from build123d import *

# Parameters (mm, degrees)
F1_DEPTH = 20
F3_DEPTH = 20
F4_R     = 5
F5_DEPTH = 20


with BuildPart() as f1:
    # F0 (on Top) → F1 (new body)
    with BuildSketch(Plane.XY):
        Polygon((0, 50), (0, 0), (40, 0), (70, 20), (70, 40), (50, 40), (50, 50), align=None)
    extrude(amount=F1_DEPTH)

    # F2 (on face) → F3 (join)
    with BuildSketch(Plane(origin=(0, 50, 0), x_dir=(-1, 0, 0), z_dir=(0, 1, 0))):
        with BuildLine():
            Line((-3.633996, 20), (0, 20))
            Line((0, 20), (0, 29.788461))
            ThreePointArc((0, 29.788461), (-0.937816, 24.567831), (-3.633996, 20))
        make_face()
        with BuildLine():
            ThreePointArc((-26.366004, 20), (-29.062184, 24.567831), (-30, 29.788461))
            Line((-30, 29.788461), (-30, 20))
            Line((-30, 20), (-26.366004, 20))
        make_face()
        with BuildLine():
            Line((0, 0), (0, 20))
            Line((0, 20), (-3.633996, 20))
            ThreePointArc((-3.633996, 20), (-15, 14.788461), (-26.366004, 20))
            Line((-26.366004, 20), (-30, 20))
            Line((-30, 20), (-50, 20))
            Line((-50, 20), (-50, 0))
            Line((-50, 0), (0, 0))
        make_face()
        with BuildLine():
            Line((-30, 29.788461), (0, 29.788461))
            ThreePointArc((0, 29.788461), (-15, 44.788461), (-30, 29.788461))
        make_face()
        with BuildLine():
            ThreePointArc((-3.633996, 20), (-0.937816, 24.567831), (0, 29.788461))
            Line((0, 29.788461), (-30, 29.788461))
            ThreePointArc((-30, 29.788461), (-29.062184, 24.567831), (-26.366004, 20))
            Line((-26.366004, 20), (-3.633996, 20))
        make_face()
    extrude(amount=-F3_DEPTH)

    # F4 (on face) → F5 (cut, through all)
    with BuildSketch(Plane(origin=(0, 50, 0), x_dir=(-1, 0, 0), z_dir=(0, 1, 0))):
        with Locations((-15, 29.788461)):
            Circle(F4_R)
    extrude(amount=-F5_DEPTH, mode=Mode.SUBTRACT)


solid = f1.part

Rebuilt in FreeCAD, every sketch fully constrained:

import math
import FreeCAD as App
import Part
import Sketcher


def add_polygon(sketch, points):
    """Adds a closed chain of lines whose ends are joined by coincident constraints."""
    first, n = sketch.GeometryCount, len(points)
    for a, b in zip(points, points[1:] + points[:1]):
        sketch.addGeometry(Part.LineSegment(App.Vector(*a, 0), App.Vector(*b, 0)), False)
    for i in range(n):
        sketch.addConstraint(Sketcher.Constraint("Coincident", first + i, 2, first + (i + 1) % n, 1))

doc = App.newDocument("Part")
body = doc.addObject("PartDesign::Body", "Body")

sketch1 = body.newObject("Sketcher::SketchObject", "Sketch")
sketch1.AttachmentSupport = (doc.getObject("XY_Plane"), [""])
sketch1.MapMode = "FlatFace"
add_polygon(sketch1, [(0, 50), (0, 0), (40, 0), (70, 20), (70, 40), (50, 40), (50, 50)])
sketch1.addConstraint([
    Sketcher.Constraint("Vertical", 0),
    Sketcher.Constraint("Horizontal", 1),
    Sketcher.Constraint("Vertical", 3),
    Sketcher.Constraint("Horizontal", 4),
    Sketcher.Constraint("Vertical", 5),
    Sketcher.Constraint("Horizontal", 6),
    Sketcher.Constraint("Coincident", 0, 2, -1, 1),
    Sketcher.Constraint("Equal", 6, 0),
    Sketcher.Constraint("Equal", 4, 3),
    Sketcher.Constraint("DistanceX", 1, 1, 1, 2, 40.0),
    Sketcher.Constraint("DistanceX", 4, 2, 4, 1, 20.0),
    Sketcher.Constraint("DistanceX", 6, 2, 6, 1, 50.0),
    Sketcher.Constraint("DistanceY", 5, 1, 5, 2, 10.0),
])
pad1 = body.newObject("PartDesign::Pad", "Pad")
pad1.Profile = sketch1
pad1.Length = 20

sketch2 = body.newObject("Sketcher::SketchObject", "Sketch001")
sketch2.AttachmentSupport = (doc.getObject("XZ_Plane"), [""])
sketch2.MapMode = "FlatFace"
sketch2.AttachmentOffset = App.Placement(App.Vector(0, 0, -50), App.Rotation())
sketch2.addGeometry([
    Part.LineSegment(App.Vector(30, 30, 0), App.Vector(30, 20, 0)),
    Part.LineSegment(App.Vector(30, 20, 0), App.Vector(50, 20, 0)),
    Part.LineSegment(App.Vector(50, 20, 0), App.Vector(50, 0, 0)),
    Part.LineSegment(App.Vector(50, 0, 0), App.Vector(0, 0, 0)),
    Part.LineSegment(App.Vector(0, 0, 0), App.Vector(0, 30, 0)),
    Part.ArcOfCircle(Part.Circle(App.Vector(15, 30, 0), App.Vector(0, 0, 1), 15), math.radians(0), math.radians(180)),
    Part.ArcOfCircle(Part.Circle(App.Vector(15, 30, 0), App.Vector(0, 0, 1), 15), math.radians(-139), math.radians(-41)),
    Part.LineSegment(App.Vector(26, 20, 0), App.Vector(4, 20, 0)),
], False)
sketch2.addConstraint([
    Sketcher.Constraint("Coincident", 0, 2, 1, 1),
    Sketcher.Constraint("Coincident", 1, 2, 2, 1),
    Sketcher.Constraint("Coincident", 2, 2, 3, 1),
    Sketcher.Constraint("Coincident", 3, 2, 4, 1),
    Sketcher.Constraint("Tangent", 4, 2, 5, 2),
    Sketcher.Constraint("Tangent", 5, 1, 0, 1),
    Sketcher.Constraint("Coincident", 6, 1, 7, 2),
    Sketcher.Constraint("Coincident", 7, 1, 6, 2),
    Sketcher.Constraint("Vertical", 0),
    Sketcher.Constraint("Horizontal", 1),
    Sketcher.Constraint("Vertical", 2),
    Sketcher.Constraint("Horizontal", 3),
    Sketcher.Constraint("Vertical", 4),
    Sketcher.Constraint("Horizontal", 7),
    Sketcher.Constraint("Coincident", 3, 2, -1, 1),
    Sketcher.Constraint("Coincident", 6, 3, 5, 3),
    Sketcher.Constraint("Equal", 5, 6),
    Sketcher.Constraint("Horizontal", 1, 2, 6, 1),
    Sketcher.Constraint("Equal", 1, 2),
    Sketcher.Constraint("Radius", 5, 15.0),
    Sketcher.Constraint("DistanceX", 1, 1, 1, 2, 20.0),
    Sketcher.Constraint("DistanceX", 7, 2, 7, 1, 22.732008),
])
pad2 = body.newObject("PartDesign::Pad", "Pad001")
pad2.Profile = sketch2
pad2.Length = 20

sketch3 = body.newObject("Sketcher::SketchObject", "Sketch002")
sketch3.AttachmentSupport = (doc.getObject("XZ_Plane"), [""])
sketch3.MapMode = "FlatFace"
sketch3.AttachmentOffset = App.Placement(App.Vector(0, 0, -50), App.Rotation())
sketch3.addGeometry(Part.Circle(App.Vector(15, 30, 0), App.Vector(0, 0, 1), 5), False)
sketch3.addConstraint([
    Sketcher.Constraint("Diameter", 0, 10.0),
    Sketcher.Constraint("DistanceX", -1, 1, 0, 3, 15.0),
    Sketcher.Constraint("DistanceY", -1, 1, 0, 3, 29.788461),
])
pocket1 = body.newObject("PartDesign::Pocket", "Pocket")
pocket1.Profile = sketch3
pocket1.Type = "ThroughAll"
pocket1.Reversed = True

doc.recompute()
